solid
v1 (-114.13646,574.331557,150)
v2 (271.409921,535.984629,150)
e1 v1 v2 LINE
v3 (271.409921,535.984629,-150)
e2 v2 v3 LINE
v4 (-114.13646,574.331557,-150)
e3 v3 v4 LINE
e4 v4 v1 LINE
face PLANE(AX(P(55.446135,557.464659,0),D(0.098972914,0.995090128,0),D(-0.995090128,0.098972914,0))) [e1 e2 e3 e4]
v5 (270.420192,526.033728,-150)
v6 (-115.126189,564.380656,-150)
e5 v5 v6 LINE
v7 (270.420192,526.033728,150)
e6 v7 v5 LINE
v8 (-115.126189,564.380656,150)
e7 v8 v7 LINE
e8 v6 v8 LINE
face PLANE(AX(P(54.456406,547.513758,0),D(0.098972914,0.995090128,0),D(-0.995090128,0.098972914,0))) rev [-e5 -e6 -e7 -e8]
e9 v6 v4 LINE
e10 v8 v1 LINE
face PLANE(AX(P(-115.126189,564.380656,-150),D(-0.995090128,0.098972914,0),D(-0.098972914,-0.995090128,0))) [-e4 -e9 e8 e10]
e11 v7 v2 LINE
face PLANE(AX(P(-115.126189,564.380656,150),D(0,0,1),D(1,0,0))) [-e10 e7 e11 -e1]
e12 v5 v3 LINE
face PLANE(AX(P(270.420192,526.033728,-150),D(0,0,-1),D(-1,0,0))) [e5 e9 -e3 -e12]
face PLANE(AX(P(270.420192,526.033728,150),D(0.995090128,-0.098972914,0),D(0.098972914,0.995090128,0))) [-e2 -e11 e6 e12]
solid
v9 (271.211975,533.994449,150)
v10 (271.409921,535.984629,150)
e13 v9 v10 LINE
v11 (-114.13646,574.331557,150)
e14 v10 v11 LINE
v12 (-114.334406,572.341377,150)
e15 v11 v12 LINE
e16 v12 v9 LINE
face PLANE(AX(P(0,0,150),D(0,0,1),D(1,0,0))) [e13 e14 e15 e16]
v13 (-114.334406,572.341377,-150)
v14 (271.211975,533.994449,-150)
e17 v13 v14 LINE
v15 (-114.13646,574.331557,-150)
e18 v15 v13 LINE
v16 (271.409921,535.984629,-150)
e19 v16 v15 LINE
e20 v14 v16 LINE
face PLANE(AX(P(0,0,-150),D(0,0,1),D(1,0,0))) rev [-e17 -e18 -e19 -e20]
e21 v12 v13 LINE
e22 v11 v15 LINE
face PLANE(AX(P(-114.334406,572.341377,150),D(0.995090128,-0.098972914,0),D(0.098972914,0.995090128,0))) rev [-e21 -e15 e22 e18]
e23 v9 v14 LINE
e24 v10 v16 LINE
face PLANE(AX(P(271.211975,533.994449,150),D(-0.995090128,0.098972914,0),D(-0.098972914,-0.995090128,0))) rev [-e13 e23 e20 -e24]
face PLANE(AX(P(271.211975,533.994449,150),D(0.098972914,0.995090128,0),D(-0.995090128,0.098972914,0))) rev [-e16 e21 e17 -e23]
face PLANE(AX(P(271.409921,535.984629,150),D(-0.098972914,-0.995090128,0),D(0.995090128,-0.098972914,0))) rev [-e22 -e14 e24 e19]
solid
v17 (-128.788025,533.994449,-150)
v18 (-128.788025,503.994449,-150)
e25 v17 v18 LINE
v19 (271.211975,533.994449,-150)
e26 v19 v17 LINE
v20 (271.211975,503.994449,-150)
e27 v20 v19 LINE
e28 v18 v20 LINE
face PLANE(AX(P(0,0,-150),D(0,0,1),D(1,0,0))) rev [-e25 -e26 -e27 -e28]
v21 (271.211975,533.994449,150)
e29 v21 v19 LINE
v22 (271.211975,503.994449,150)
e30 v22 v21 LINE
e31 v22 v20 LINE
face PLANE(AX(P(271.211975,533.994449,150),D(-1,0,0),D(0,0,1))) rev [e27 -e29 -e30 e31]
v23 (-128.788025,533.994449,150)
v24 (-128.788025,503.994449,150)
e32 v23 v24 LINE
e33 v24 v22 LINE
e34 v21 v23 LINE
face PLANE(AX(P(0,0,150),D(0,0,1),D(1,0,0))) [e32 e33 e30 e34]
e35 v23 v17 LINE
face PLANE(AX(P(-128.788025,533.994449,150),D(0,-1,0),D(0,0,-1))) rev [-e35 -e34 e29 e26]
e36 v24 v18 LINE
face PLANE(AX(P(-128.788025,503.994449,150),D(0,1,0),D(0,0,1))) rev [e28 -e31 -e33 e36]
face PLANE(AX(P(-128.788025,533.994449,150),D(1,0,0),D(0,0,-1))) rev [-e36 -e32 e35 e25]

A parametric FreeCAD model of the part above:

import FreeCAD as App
import Part
import Sketcher

V = App.Vector

doc = App.newDocument("Part")
params = doc.addObject("Spreadsheet::Sheet", "Params")
for row, (alias, value) in enumerate([
    ("sketch1_width", "400 mm"),
    ("sketch1_height", "30 mm"),
    ("pad1_length", "300 mm"),
    ("sketch2_length", "2 mm"),
    ("pad2_length", "150 mm"),
    ("pad2_length2", "150 mm"),
    ("sketch3_height", "300 mm"),
    ("pad3_length", "10 mm"),
], start=1):
    params.set(f"A{row}", alias)
    params.set(f"B{row}", "=" + value)
    params.setAlias(f"B{row}", alias)

body = doc.addObject("PartDesign::Body", "Body")

# Sketch on XY plane
sketch1 = body.newObject("Sketcher::SketchObject", "Sketch")
sketch1.AttachmentSupport = (doc.getObject("XY_Plane"), [""])
sketch1.MapMode = "FlatFace"
sketch1.addGeometry([
    Part.LineSegment(V(-129, 534, 0), V(-129, 504, 0)),
    Part.LineSegment(V(-129, 504, 0), V(271, 504, 0)),
    Part.LineSegment(V(271, 504, 0), V(271, 534, 0)),
    Part.LineSegment(V(271, 534, 0), V(-129, 534, 0)),
], False)
sketch1.addConstraint([
    Sketcher.Constraint("Coincident", 0, 2, 1, 1),
    Sketcher.Constraint("Coincident", 1, 2, 2, 1),
    Sketcher.Constraint("Coincident", 2, 2, 3, 1),
    Sketcher.Constraint("Coincident", 3, 2, 0, 1),
    Sketcher.Constraint("Vertical", 0),
    Sketcher.Constraint("Horizontal", 1),
    Sketcher.Constraint("Vertical", 2),
    Sketcher.Constraint("Horizontal", 3),
    Sketcher.Constraint("DistanceX", 1, 1, 1, 2, 400.0),
    Sketcher.Constraint("DistanceY", 0, 2, 0, 1, 30.0),
    Sketcher.Constraint("DistanceY", -1, 1, 0, 2, 503.994449),
    Sketcher.Constraint("DistanceX", 0, 2, -1, 1, 128.788025),
])
sketch1.setExpression("Constraints[8]", "Params.sketch1_width")
sketch1.setExpression("Constraints[9]", "Params.sketch1_height")
pad1 = body.newObject("PartDesign::Pad", "Pad")
pad1.Profile = sketch1
pad1.setExpression("Length", "Params.pad1_length")
pad1.Midplane = True
body2 = doc.addObject("PartDesign::Body", "Body001")

# Sketch on XY plane
sketch2 = body2.newObject("Sketcher::SketchObject", "Sketch001")
sketch2.AttachmentSupport = (doc.getObject("XY_Plane001"), [""])
sketch2.MapMode = "FlatFace"
sketch2.addGeometry([
    Part.LineSegment(V(-114.3, 572.3, 0), V(271.2, 534, 0)),
    Part.LineSegment(V(271.2, 534, 0), V(271.4, 536, 0)),
    Part.LineSegment(V(271.4, 536, 0), V(-114.1, 574.3, 0)),
    Part.LineSegment(V(-114.1, 574.3, 0), V(-114.3, 572.3, 0)),
], False)
sketch2.addConstraint([
    Sketcher.Constraint("Coincident", 0, 2, 1, 1),
    Sketcher.Constraint("Coincident", 1, 2, 2, 1),
    Sketcher.Constraint("Coincident", 2, 2, 3, 1),
    Sketcher.Constraint("Coincident", 3, 2, 0, 1),
    Sketcher.Constraint("Perpendicular", 0, 1),
    Sketcher.Constraint("Perpendicular", 1, 2),
    Sketcher.Constraint("Perpendicular", 2, 3),
    Sketcher.Constraint("Distance", 1, 2.0),
    Sketcher.Constraint("DistanceY", -1, 1, 0, 2, 533.994449),
    Sketcher.Constraint("DistanceX", -1, 1, 1, 2, 271.409921),
    Sketcher.Constraint("DistanceX", 2, 2, -1, 1, 114.13646),
    Sketcher.Constraint("Distance", 0, 387.448705),
])
sketch2.setExpression("Constraints[7]", "Params.sketch2_length")
pad2 = body2.newObject("PartDesign::Pad", "Pad001")
pad2.Profile = sketch2
pad2.Type = "TwoLengths"
pad2.setExpression("Length", "Params.pad2_length")
pad2.setExpression("Length2", "Params.pad2_length2")
body3 = doc.addObject("PartDesign::Body", "Body002")

# Sketch on an angled plane
sketch3 = body3.newObject("Sketcher::SketchObject", "Sketch002")
sketch3.Placement = App.Placement(V(55.446135, 557.464659, 0), App.Rotation(V(0.995090128, -0.098972914, 0), V(0, 0, -1.000000001), V(0.098972914, 0.995090128, 0), "ZXY"))
sketch3.addGeometry([
    Part.LineSegment(V(-170, 150, 0), V(-170, -150, 0)),
    Part.LineSegment(V(-170, -150, 0), V(217, -150, 0)),
    Part.LineSegment(V(217, -150, 0), V(217, 150, 0)),
    Part.LineSegment(V(217, 150, 0), V(-170, 150, 0)),
], False)
sketch3.addConstraint([
    Sketcher.Constraint("Coincident", 0, 2, 1, 1),
    Sketcher.Constraint("Coincident", 1, 2, 2, 1),
    Sketcher.Constraint("Coincident", 2, 2, 3, 1),
    Sketcher.Constraint("Coincident", 3, 2, 0, 1),
    Sketcher.Constraint("Vertical", 0),
    Sketcher.Constraint("Horizontal", 1),
    Sketcher.Constraint("Vertical", 2),
    Sketcher.Constraint("Horizontal", 3),
    Sketcher.Constraint("DistanceY", 0, 2, 0, 1, 300.0),
    Sketcher.Constraint("DistanceY", 0, 2, -1, 1, 150.0),
    Sketcher.Constraint("DistanceX", 1, 1, 1, 2, 387.448705),
    Sketcher.Constraint("DistanceX", 0, 2, -1, 1, 170.419333),
])
sketch3.setExpression("Constraints[8]", "Params.sketch3_height")
pad3 = body3.newObject("PartDesign::Pad", "Pad002")
pad3.Profile = sketch3
pad3.setExpression("Length", "Params.pad3_length")
pad3.Reversed = True

doc.recompute()
